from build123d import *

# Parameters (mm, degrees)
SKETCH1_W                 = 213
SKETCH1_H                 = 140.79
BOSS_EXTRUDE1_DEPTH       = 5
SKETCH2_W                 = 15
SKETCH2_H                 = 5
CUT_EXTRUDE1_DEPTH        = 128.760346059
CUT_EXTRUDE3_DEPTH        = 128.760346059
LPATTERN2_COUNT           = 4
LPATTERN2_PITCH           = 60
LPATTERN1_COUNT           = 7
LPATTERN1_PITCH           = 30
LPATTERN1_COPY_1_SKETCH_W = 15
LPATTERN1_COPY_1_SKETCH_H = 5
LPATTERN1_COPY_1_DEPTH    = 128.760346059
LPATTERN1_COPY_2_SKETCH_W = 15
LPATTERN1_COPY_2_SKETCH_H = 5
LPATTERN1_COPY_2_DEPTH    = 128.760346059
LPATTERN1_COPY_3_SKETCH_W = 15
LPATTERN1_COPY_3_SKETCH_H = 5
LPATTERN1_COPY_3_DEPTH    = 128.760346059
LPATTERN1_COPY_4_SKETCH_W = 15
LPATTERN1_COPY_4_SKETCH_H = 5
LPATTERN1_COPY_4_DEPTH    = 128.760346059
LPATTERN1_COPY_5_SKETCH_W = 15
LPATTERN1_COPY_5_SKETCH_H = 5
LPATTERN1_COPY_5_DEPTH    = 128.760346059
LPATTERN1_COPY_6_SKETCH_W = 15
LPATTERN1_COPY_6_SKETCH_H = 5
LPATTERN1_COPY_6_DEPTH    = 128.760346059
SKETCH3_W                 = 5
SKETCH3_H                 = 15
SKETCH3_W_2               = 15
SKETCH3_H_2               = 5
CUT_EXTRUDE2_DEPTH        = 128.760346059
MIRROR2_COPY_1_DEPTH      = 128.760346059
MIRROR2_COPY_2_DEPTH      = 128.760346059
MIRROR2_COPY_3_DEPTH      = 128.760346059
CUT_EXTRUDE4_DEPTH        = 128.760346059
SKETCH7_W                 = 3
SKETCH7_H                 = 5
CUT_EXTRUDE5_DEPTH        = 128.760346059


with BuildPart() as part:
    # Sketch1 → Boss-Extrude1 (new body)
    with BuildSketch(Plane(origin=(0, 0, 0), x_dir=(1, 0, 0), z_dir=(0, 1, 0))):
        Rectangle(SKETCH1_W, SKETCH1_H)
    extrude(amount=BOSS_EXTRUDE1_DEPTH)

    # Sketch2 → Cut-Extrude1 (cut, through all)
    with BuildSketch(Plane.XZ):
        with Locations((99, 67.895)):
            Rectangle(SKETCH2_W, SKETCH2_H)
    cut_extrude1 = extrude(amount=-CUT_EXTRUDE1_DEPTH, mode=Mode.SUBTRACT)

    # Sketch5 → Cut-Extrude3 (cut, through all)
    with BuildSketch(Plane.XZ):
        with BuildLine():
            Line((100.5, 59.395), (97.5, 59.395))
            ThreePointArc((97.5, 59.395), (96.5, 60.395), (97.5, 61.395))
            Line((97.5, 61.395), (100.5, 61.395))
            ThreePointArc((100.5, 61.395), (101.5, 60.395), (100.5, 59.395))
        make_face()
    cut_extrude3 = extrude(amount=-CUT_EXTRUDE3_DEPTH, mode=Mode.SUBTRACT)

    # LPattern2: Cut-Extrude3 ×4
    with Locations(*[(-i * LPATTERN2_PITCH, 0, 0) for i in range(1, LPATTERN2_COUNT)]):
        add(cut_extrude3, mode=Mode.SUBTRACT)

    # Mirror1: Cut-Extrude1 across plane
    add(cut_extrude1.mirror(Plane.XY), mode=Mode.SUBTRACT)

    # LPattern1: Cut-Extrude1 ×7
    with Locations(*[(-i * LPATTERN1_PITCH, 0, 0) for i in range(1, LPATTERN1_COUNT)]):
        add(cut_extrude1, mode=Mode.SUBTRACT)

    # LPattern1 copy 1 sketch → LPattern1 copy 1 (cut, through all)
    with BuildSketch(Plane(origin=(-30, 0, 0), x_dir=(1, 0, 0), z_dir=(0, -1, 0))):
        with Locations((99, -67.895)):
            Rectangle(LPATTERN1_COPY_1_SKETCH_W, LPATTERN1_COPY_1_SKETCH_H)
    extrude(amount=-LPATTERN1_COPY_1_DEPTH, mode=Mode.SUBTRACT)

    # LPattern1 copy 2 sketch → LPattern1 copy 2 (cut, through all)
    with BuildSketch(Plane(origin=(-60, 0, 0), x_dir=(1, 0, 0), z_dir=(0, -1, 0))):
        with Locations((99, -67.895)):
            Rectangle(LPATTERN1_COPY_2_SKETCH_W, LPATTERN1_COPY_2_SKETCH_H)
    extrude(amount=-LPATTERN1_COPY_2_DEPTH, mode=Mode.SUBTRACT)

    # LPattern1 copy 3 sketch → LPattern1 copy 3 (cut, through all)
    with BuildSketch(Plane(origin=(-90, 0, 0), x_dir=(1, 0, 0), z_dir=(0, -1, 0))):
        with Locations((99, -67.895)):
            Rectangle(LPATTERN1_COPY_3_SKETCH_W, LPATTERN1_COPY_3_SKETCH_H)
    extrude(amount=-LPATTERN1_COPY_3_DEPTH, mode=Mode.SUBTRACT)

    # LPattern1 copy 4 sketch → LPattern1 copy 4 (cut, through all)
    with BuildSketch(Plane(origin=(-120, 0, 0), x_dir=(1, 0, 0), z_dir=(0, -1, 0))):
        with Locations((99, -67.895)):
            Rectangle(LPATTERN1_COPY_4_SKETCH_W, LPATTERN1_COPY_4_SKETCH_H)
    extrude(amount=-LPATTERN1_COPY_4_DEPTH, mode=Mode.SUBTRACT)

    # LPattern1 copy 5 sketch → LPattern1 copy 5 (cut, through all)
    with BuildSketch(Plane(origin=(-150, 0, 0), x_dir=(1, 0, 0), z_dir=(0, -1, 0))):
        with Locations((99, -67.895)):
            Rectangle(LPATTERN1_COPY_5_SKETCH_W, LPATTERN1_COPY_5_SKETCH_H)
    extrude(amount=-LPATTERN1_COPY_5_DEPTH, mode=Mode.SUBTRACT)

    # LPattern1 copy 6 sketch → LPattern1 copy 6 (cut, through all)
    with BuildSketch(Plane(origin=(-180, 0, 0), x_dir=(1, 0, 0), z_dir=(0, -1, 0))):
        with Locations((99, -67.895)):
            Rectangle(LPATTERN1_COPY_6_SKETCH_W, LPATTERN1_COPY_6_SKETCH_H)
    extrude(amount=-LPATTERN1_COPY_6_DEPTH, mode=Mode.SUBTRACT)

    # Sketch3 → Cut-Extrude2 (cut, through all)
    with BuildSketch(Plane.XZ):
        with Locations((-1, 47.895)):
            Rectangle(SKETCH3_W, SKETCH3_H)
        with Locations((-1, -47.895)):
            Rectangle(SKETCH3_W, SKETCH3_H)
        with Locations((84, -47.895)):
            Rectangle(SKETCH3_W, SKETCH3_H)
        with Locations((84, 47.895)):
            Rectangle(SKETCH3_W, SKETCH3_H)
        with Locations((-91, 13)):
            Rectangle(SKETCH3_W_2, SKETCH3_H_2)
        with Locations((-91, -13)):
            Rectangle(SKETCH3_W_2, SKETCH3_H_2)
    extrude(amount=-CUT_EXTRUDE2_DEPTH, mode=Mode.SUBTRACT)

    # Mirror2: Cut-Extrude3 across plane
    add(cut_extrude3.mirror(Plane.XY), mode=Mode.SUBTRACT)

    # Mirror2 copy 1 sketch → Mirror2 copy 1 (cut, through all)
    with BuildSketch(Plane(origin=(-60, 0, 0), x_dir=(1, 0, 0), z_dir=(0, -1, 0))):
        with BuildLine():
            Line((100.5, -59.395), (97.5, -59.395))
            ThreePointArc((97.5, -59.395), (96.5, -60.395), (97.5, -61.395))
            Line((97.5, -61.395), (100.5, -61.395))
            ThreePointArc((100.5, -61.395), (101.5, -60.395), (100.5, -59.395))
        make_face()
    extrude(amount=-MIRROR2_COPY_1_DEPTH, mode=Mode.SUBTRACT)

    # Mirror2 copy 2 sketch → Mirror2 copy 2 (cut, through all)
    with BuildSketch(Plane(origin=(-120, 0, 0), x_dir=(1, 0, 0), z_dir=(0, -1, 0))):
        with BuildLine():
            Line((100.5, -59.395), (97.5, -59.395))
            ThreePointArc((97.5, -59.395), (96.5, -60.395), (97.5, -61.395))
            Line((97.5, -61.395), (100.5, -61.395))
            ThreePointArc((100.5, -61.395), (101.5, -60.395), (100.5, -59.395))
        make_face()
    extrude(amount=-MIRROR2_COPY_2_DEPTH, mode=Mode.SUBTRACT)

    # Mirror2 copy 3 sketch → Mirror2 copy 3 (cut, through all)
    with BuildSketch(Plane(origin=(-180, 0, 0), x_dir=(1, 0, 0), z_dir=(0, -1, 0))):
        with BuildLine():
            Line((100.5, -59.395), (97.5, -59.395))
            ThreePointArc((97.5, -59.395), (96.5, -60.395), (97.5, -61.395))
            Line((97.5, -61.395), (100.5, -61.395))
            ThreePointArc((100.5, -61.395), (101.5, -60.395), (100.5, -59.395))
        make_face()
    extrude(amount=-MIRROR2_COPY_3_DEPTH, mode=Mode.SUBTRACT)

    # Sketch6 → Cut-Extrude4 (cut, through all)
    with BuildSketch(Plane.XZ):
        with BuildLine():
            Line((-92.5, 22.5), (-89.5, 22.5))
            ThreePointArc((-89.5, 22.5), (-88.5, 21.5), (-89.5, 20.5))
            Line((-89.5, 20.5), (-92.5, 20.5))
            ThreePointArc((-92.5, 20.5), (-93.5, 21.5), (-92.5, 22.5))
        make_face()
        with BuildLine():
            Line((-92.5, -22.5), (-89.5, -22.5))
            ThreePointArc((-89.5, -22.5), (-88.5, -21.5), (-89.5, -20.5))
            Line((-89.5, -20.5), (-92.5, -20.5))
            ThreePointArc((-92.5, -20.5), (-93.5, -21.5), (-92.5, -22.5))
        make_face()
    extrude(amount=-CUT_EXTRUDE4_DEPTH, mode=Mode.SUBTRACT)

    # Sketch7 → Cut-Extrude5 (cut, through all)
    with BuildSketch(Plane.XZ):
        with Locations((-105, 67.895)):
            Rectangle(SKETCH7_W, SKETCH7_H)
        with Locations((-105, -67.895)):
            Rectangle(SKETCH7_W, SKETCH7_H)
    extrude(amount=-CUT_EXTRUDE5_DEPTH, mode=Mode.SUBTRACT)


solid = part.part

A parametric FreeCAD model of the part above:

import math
import FreeCAD as App
import Part
import Sketcher

V = App.Vector

doc = App.newDocument("Part")
body = doc.addObject("PartDesign::Body", "Body")

sketch1 = body.newObject("Sketcher::SketchObject", "Sketch")
sketch1.AttachmentSupport = (doc.getObject("XZ_Plane"), [""])
sketch1.MapMode = "FlatFace"
sketch1.addGeometry(Part.LineSegment(V(-106, -70, 0), V(-106, 70, 0)), False)
sketch1.addGeometry(Part.LineSegment(V(-106, 70, 0), V(106, 70, 0)), False)
sketch1.addGeometry(Part.LineSegment(V(106, 70, 0), V(106, -70, 0)), False)
sketch1.addGeometry(Part.LineSegment(V(106, -70, 0), V(-106, -70, 0)), False)
sketch1.addConstraint(Sketcher.Constraint("Coincident", 0, 2, 1, 1))
sketch1.addConstraint(Sketcher.Constraint("Coincident", 1, 2, 2, 1))
sketch1.addConstraint(Sketcher.Constraint("Coincident", 2, 2, 3, 1))
sketch1.addConstraint(Sketcher.Constraint("Coincident", 3, 2, 0, 1))
sketch1.addConstraint(Sketcher.Constraint("Vertical", 0))
sketch1.addConstraint(Sketcher.Constraint("Horizontal", 1))
sketch1.addConstraint(Sketcher.Constraint("Vertical", 2))
sketch1.addConstraint(Sketcher.Constraint("Horizontal", 3))
sketch1.addConstraint(Sketcher.Constraint("Symmetric", 0, 2, 2, 2, -1, 1))
sketch1.addConstraint(Sketcher.Constraint("DistanceX", 1, 1, 1, 2, 213.0))
sketch1.addConstraint(Sketcher.Constraint("DistanceY", 0, 1, 0, 2, 140.79))
pad1 = body.newObject("PartDesign::Pad", "Pad")
pad1.Profile = sketch1
pad1.Length = 5
pad1.Reversed = True

sketch2 = body.newObject("Sketcher::SketchObject", "Sketch001")
sketch2.AttachmentSupport = (doc.getObject("XZ_Plane"), [""])
sketch2.MapMode = "FlatFace"
sketch2.addGeometry(Part.LineSegment(V(92, 70, 0), V(92, 65, 0)), False)
sketch2.addGeometry(Part.LineSegment(V(92, 65, 0), V(106, 65, 0)), False)
sketch2.addGeometry(Part.LineSegment(V(106, 65, 0), V(106, 70, 0)), False)
sketch2.addGeometry(Part.LineSegment(V(106, 70, 0), V(92, 70, 0)), False)
sketch2.addConstraint(Sketcher.Constraint("Coincident", 0, 2, 1, 1))
sketch2.addConstraint(Sketcher.Constraint("Coincident", 1, 2, 2, 1))
sketch2.addConstraint(Sketcher.Constraint("Coincident", 2, 2, 3, 1))
sketch2.addConstraint(Sketcher.Constraint("Coincident", 3, 2, 0, 1))
sketch2.addConstraint(Sketcher.Constraint("Vertical", 0))
sketch2.addConstraint(Sketcher.Constraint("Horizontal", 1))
sketch2.addConstraint(Sketcher.Constraint("Vertical", 2))
sketch2.addConstraint(Sketcher.Constraint("Horizontal", 3))
sketch2.addConstraint(Sketcher.Constraint("DistanceX", 1, 1, 1, 2, 15.0))
sketch2.addConstraint(Sketcher.Constraint("DistanceY", 0, 2, 0, 1, 5.0))
sketch2.addConstraint(Sketcher.Constraint("DistanceX", -1, 1, 0, 2, 91.5))
sketch2.addConstraint(Sketcher.Constraint("DistanceY", -1, 1, 0, 2, 65.395))
pocket1 = body.newObject("PartDesign::Pocket", "Pocket")
pocket1.Profile = sketch2
pocket1.Type = "ThroughAll"

sketch3 = body.newObject("Sketcher::SketchObject", "Sketch002")
sketch3.AttachmentSupport = (doc.getObject("XZ_Plane"), [""])
sketch3.MapMode = "FlatFace"
sketch3.addGeometry(Part.LineSegment(V(97.5, 59.4, 0), V(100.5, 59.4, 0)), False)
sketch3.addGeometry(Part.ArcOfCircle(Part.Circle(V(100.5, 60.4, 0), V(0, 0, 1), 1), math.radians(-90), math.radians(90)), False)
sketch3.addGeometry(Part.LineSegment(V(100.5, 61.4, 0), V(97.5, 61.4, 0)), False)
sketch3.addGeometry(Part.ArcOfCircle(Part.Circle(V(97.5, 60.4, 0), V(0, 0, 1), 1), math.radians(90), math.radians(270)), False)
sketch3.addConstraint(Sketcher.Constraint("Tangent", 0, 2, 1, 1))
sketch3.addConstraint(Sketcher.Constraint("Tangent", 1, 2, 2, 1))
sketch3.addConstraint(Sketcher.Constraint("Tangent", 2, 2, 3, 1))
sketch3.addConstraint(Sketcher.Constraint("Tangent", 3, 2, 0, 1))
sketch3.addConstraint(Sketcher.Constraint("Horizontal", 0))
sketch3.addConstraint(Sketcher.Constraint("Horizontal", 2))
sketch3.addConstraint(Sketcher.Constraint("Radius", 1, 1.0))
sketch3.addConstraint(Sketcher.Constraint("DistanceX", 0, 1, 0, 2, 3.0))
sketch3.addConstraint(Sketcher.Constraint("DistanceX", -1, 1, 1, 3, 100.5))
sketch3.addConstraint(Sketcher.Constraint("DistanceY", -1, 1, 1, 3, 60.395))
pocket2 = body.newObject("PartDesign::Pocket", "Pocket001")
pocket2.Profile = sketch3
pocket2.Type = "ThroughAll"
doc.recompute()

linearpattern = body.newObject("PartDesign::LinearPattern", "LinearPattern")
linearpattern.Originals = [pocket2]
linearpattern.Direction = (doc.getObject("X_Axis"), [""])
linearpattern.Mode = "offset"
linearpattern.Offset = 60
linearpattern.Occurrences = 4
linearpattern.Reversed = True
body.Tip = linearpattern
doc.recompute()

mirrored = body.newObject("PartDesign::Mirrored", "Mirrored")
mirrored.Originals = [pocket1]
mirrored.MirrorPlane = (doc.getObject("XY_Plane"), [""])
body.Tip = mirrored
doc.recompute()

linearpattern2 = body.newObject("PartDesign::LinearPattern", "LinearPattern001")
linearpattern2.Originals = [pocket1]
linearpattern2.Direction = (doc.getObject("X_Axis"), [""])
linearpattern2.Mode = "offset"
linearpattern2.Offset = 30
linearpattern2.Occurrences = 7
linearpattern2.Reversed = True
body.Tip = linearpattern2

sketch4 = body.newObject("Sketcher::SketchObject", "Sketch003")
sketch4.AttachmentSupport = (doc.getObject("XZ_Plane"), [""])
sketch4.MapMode = "FlatFace"
sketch4.addGeometry(Part.LineSegment(V(62, -65, 0), V(62, -70, 0)), False)
sketch4.addGeometry(Part.LineSegment(V(62, -70, 0), V(76, -70, 0)), False)
sketch4.addGeometry(Part.LineSegment(V(76, -70, 0), V(76, -65, 0)), False)
sketch4.addGeometry(Part.LineSegment(V(76, -65, 0), V(62, -65, 0)), False)
sketch4.addConstraint(Sketcher.Constraint("Coincident", 0, 2, 1, 1))
sketch4.addConstraint(Sketcher.Constraint("Coincident", 1, 2, 2, 1))
sketch4.addConstraint(Sketcher.Constraint("Coincident", 2, 2, 3, 1))
sketch4.addConstraint(Sketcher.Constraint("Coincident", 3, 2, 0, 1))
sketch4.addConstraint(Sketcher.Constraint("Vertical", 0))
sketch4.addConstraint(Sketcher.Constraint("Horizontal", 1))
sketch4.addConstraint(Sketcher.Constraint("Vertical", 2))
sketch4.addConstraint(Sketcher.Constraint("Horizontal", 3))
sketch4.addConstraint(Sketcher.Constraint("DistanceX", 1, 1, 1, 2, 15.0))
sketch4.addConstraint(Sketcher.Constraint("DistanceY", 0, 2, 0, 1, 5.0))
sketch4.addConstraint(Sketcher.Constraint("DistanceX", -1, 1, 0, 2, 61.5))
sketch4.addConstraint(Sketcher.Constraint("DistanceY", 0, 2, -1, 1, 70.395))
pocket3 = body.newObject("PartDesign::Pocket", "Pocket002")
pocket3.Profile = sketch4
pocket3.Type = "ThroughAll"

sketch5 = body.newObject("Sketcher::SketchObject", "Sketch004")
sketch5.AttachmentSupport = (doc.getObject("XZ_Plane"), [""])
sketch5.MapMode = "FlatFace"
sketch5.addGeometry(Part.LineSegment(V(32, -65, 0), V(32, -70, 0)), False)
sketch5.addGeometry(Part.LineSegment(V(32, -70, 0), V(46, -70, 0)), False)
sketch5.addGeometry(Part.LineSegment(V(46, -70, 0), V(46, -65, 0)), False)
sketch5.addGeometry(Part.LineSegment(V(46, -65, 0), V(32, -65, 0)), False)
sketch5.addConstraint(Sketcher.Constraint("Coincident", 0, 2, 1, 1))
sketch5.addConstraint(Sketcher.Constraint("Coincident", 1, 2, 2, 1))
sketch5.addConstraint(Sketcher.Constraint("Coincident", 2, 2, 3, 1))
sketch5.addConstraint(Sketcher.Constraint("Coincident", 3, 2, 0, 1))
sketch5.addConstraint(Sketcher.Constraint("Vertical", 0))
sketch5.addConstraint(Sketcher.Constraint("Horizontal", 1))
sketch5.addConstraint(Sketcher.Constraint("Vertical", 2))
sketch5.addConstraint(Sketcher.Constraint("Horizontal", 3))
sketch5.addConstraint(Sketcher.Constraint("DistanceX", 1, 1, 1, 2, 15.0))
sketch5.addConstraint(Sketcher.Constraint("DistanceY", 0, 2, 0, 1, 5.0))
sketch5.addConstraint(Sketcher.Constraint("DistanceX", -1, 1, 0, 2, 31.5))
sketch5.addConstraint(Sketcher.Constraint("DistanceY", 0, 2, -1, 1, 70.395))
pocket4 = body.newObject("PartDesign::Pocket", "Pocket003")
pocket4.Profile = sketch5
pocket4.Type = "ThroughAll"

sketch6 = body.newObject("Sketcher::SketchObject", "Sketch005")
sketch6.AttachmentSupport = (doc.getObject("XZ_Plane"), [""])
sketch6.MapMode = "FlatFace"
sketch6.addGeometry(Part.LineSegment(V(2, -65, 0), V(2, -70, 0)), False)
sketch6.addGeometry(Part.LineSegment(V(2, -70, 0), V(16, -70, 0)), False)
sketch6.addGeometry(Part.LineSegment(V(16, -70, 0), V(16, -65, 0)), False)
sketch6.addGeometry(Part.LineSegment(V(16, -65, 0), V(2, -65, 0)), False)
sketch6.addConstraint(Sketcher.Constraint("Coincident", 0, 2, 1, 1))
sketch6.addConstraint(Sketcher.Constraint("Coincident", 1, 2, 2, 1))
sketch6.addConstraint(Sketcher.Constraint("Coincident", 2, 2, 3, 1))
sketch6.addConstraint(Sketcher.Constraint("Coincident", 3, 2, 0, 1))
sketch6.addConstraint(Sketcher.Constraint("Vertical", 0))
sketch6.addConstraint(Sketcher.Constraint("Horizontal", 1))
sketch6.addConstraint(Sketcher.Constraint("Vertical", 2))
sketch6.addConstraint(Sketcher.Constraint("Horizontal", 3))
sketch6.addConstraint(Sketcher.Constraint("DistanceX", 1, 1, 1, 2, 15.0))
sketch6.addConstraint(Sketcher.Constraint("DistanceY", 0, 2, 0, 1, 5.0))
sketch6.addConstraint(Sketcher.Constraint("DistanceX", -1, 1, 0, 2, 1.5))
sketch6.addConstraint(Sketcher.Constraint("DistanceY", 0, 2, -1, 1, 70.395))
pocket5 = body.newObject("PartDesign::Pocket", "Pocket004")
pocket5.Profile = sketch6
pocket5.Type = "ThroughAll"

sketch7 = body.newObject("Sketcher::SketchObject", "Sketch006")
sketch7.AttachmentSupport = (doc.getObject("XZ_Plane"), [""])
sketch7.MapMode = "FlatFace"
sketch7.addGeometry(Part.LineSegment(V(-28, -65, 0), V(-28, -70, 0)), False)
sketch7.addGeometry(Part.LineSegment(V(-28, -70, 0), V(-14, -70, 0)), False)
sketch7.addGeometry(Part.LineSegment(V(-14, -70, 0), V(-14, -65, 0)), False)
sketch7.addGeometry(Part.LineSegment(V(-14, -65, 0), V(-28, -65, 0)), False)
sketch7.addConstraint(Sketcher.Constraint("Coincident", 0, 2, 1, 1))
sketch7.addConstraint(Sketcher.Constraint("Coincident", 1, 2, 2, 1))
sketch7.addConstraint(Sketcher.Constraint("Coincident", 2, 2, 3, 1))
sketch7.addConstraint(Sketcher.Constraint("Coincident", 3, 2, 0, 1))
sketch7.addConstraint(Sketcher.Constraint("Vertical", 0))
sketch7.addConstraint(Sketcher.Constraint("Horizontal", 1))
sketch7.addConstraint(Sketcher.Constraint("Vertical", 2))
sketch7.addConstraint(Sketcher.Constraint("Horizontal", 3))
sketch7.addConstraint(Sketcher.Constraint("DistanceX", 1, 1, 1, 2, 15.0))
sketch7.addConstraint(Sketcher.Constraint("DistanceY", 0, 2, 0, 1, 5.0))
sketch7.addConstraint(Sketcher.Constraint("DistanceX", 0, 2, -1, 1, 28.5))
sketch7.addConstraint(Sketcher.Constraint("DistanceY", 0, 2, -1, 1, 70.395))
pocket6 = body.newObject("PartDesign::Pocket", "Pocket005")
pocket6.Profile = sketch7
pocket6.Type = "ThroughAll"

sketch8 = body.newObject("Sketcher::SketchObject", "Sketch007")
sketch8.AttachmentSupport = (doc.getObject("XZ_Plane"), [""])
sketch8.MapMode = "FlatFace"
sketch8.addGeometry(Part.LineSegment(V(-58, -65, 0), V(-58, -70, 0)), False)
sketch8.addGeometry(Part.LineSegment(V(-58, -70, 0), V(-44, -70, 0)), False)
sketch8.addGeometry(Part.LineSegment(V(-44, -70, 0), V(-44, -65, 0)), False)
sketch8.addGeometry(Part.LineSegment(V(-44, -65, 0), V(-58, -65, 0)), False)
sketch8.addConstraint(Sketcher.Constraint("Coincident", 0, 2, 1, 1))
sketch8.addConstraint(Sketcher.Constraint("Coincident", 1, 2, 2, 1))
sketch8.addConstraint(Sketcher.Constraint("Coincident", 2, 2, 3, 1))
sketch8.addConstraint(Sketcher.Constraint("Coincident", 3, 2, 0, 1))
sketch8.addConstraint(Sketcher.Constraint("Vertical", 0))
sketch8.addConstraint(Sketcher.Constraint("Horizontal", 1))
sketch8.addConstraint(Sketcher.Constraint("Vertical", 2))
sketch8.addConstraint(Sketcher.Constraint("Horizontal", 3))
sketch8.addConstraint(Sketcher.Constraint("DistanceX", 1, 1, 1, 2, 15.0))
sketch8.addConstraint(Sketcher.Constraint("DistanceY", 0, 2, 0, 1, 5.0))
sketch8.addConstraint(Sketcher.Constraint("DistanceX", 0, 2, -1, 1, 58.5))
sketch8.addConstraint(Sketcher.Constraint("DistanceY", 0, 2, -1, 1, 70.395))
pocket7 = body.newObject("PartDesign::Pocket", "Pocket006")
pocket7.Profile = sketch8
pocket7.Type = "ThroughAll"

sketch9 = body.newObject("Sketcher::SketchObject", "Sketch008")
sketch9.AttachmentSupport = (doc.getObject("XZ_Plane"), [""])
sketch9.MapMode = "FlatFace"
sketch9.addGeometry(Part.LineSegment(V(-88, -65, 0), V(-88, -70, 0)), False)
sketch9.addGeometry(Part.LineSegment(V(-88, -70, 0), V(-74, -70, 0)), False)
sketch9.addGeometry(Part.LineSegment(V(-74, -70, 0), V(-74, -65, 0)), False)
sketch9.addGeometry(Part.LineSegment(V(-74, -65, 0), V(-88, -65, 0)), False)
sketch9.addConstraint(Sketcher.Constraint("Coincident", 0, 2, 1, 1))
sketch9.addConstraint(Sketcher.Constraint("Coincident", 1, 2, 2, 1))
sketch9.addConstraint(Sketcher.Constraint("Coincident", 2, 2, 3, 1))
sketch9.addConstraint(Sketcher.Constraint("Coincident", 3, 2, 0, 1))
sketch9.addConstraint(Sketcher.Constraint("Vertical", 0))
sketch9.addConstraint(Sketcher.Constraint("Horizontal", 1))
sketch9.addConstraint(Sketcher.Constraint("Vertical", 2))
sketch9.addConstraint(Sketcher.Constraint("Horizontal", 3))
sketch9.addConstraint(Sketcher.Constraint("DistanceX", 1, 1, 1, 2, 15.0))
sketch9.addConstraint(Sketcher.Constraint("DistanceY", 0, 2, 0, 1, 5.0))
sketch9.addConstraint(Sketcher.Constraint("DistanceX", 0, 2, -1, 1, 88.5))
sketch9.addConstraint(Sketcher.Constraint("DistanceY", 0, 2, -1, 1, 70.395))
pocket8 = body.newObject("PartDesign::Pocket", "Pocket007")
pocket8.Profile = sketch9
pocket8.Type = "ThroughAll"

sketch10 = body.newObject("Sketcher::SketchObject", "Sketch009")
sketch10.AttachmentSupport = (doc.getObject("XZ_Plane"), [""])
sketch10.MapMode = "FlatFace"
sketch10.addGeometry(Part.LineSegment(V(-4, 55, 0), V(-4, 40, 0)), False)
sketch10.addGeometry(Part.LineSegment(V(-4, 40, 0), V(2, 40, 0)), False)
sketch10.addGeometry(Part.LineSegment(V(2, 40, 0), V(2, 55, 0)), False)
sketch10.addGeometry(Part.LineSegment(V(2, 55, 0), V(-4, 55, 0)), False)
sketch10.addGeometry(Part.LineSegment(V(-4, -40, 0), V(-4, -55, 0)), False)
sketch10.addGeometry(Part.LineSegment(V(-4, -55, 0), V(2, -55, 0)), False)
sketch10.addGeometry(Part.LineSegment(V(2, -55, 0), V(2, -40, 0)), False)
sketch10.addGeometry(Part.LineSegment(V(2, -40, 0), V(-4, -40, 0)), False)
sketch10.addGeometry(Part.LineSegment(V(82, -40, 0), V(82, -55, 0)), False)
sketch10.addGeometry(Part.LineSegment(V(82, -55, 0), V(86, -55, 0)), False)
sketch10.addGeometry(Part.LineSegment(V(86, -55, 0), V(86, -40, 0)), False)
sketch10.addGeometry(Part.LineSegment(V(86, -40, 0), V(82, -40, 0)), False)
sketch10.addGeometry(Part.LineSegment(V(82, 55, 0), V(82, 40, 0)), False)
sketch10.addGeometry(Part.LineSegment(V(82, 40, 0), V(86, 40, 0)), False)
sketch10.addGeometry(Part.LineSegment(V(86, 40, 0), V(86, 55, 0)), False)
sketch10.addGeometry(Part.LineSegment(V(86, 55, 0), V(82, 55, 0)), False)
sketch10.addGeometry(Part.LineSegment(V(-98, 16, 0), V(-98, 10, 0)), False)
sketch10.addGeometry(Part.LineSegment(V(-98, 10, 0), V(-84, 10, 0)), False)
sketch10.addGeometry(Part.LineSegment(V(-84, 10, 0), V(-84, 16, 0)), False)
sketch10.addGeometry(Part.LineSegment(V(-84, 16, 0), V(-98, 16, 0)), False)
sketch10.addGeometry(Part.LineSegment(V(-98, -10, 0), V(-98, -16, 0)), False)
sketch10.addGeometry(Part.LineSegment(V(-98, -16, 0), V(-84, -16, 0)), False)
sketch10.addGeometry(Part.LineSegment(V(-84, -16, 0), V(-84, -10, 0)), False)
sketch10.addGeometry(Part.LineSegment(V(-84, -10, 0), V(-98, -10, 0)), False)
sketch10.addConstraint(Sketcher.Constraint("Coincident", 0, 2, 1, 1))
sketch10.addConstraint(Sketcher.Constraint("Coincident", 1, 2, 2, 1))
sketch10.addConstraint(Sketcher.Constraint("Coincident", 2, 2, 3, 1))
sketch10.addConstraint(Sketcher.Constraint("Coincident", 3, 2, 0, 1))
sketch10.addConstraint(Sketcher.Constraint("Coincident", 4, 2, 5, 1))
sketch10.addConstraint(Sketcher.Constraint("Coincident", 5, 2, 6, 1))
sketch10.addConstraint(Sketcher.Constraint("Coincident", 6, 2, 7, 1))
sketch10.addConstraint(Sketcher.Constraint("Coincident", 7, 2, 4, 1))
sketch10.addConstraint(Sketcher.Constraint("Coincident", 8, 2, 9, 1))
sketch10.addConstraint(Sketcher.Constraint("Coincident", 9, 2, 10, 1))
sketch10.addConstraint(Sketcher.Constraint("Coincident", 10, 2, 11, 1))
sketch10.addConstraint(Sketcher.Constraint("Coincident", 11, 2, 8, 1))
sketch10.addConstraint(Sketcher.Constraint("Coincident", 12, 2, 13, 1))
sketch10.addConstraint(Sketcher.Constraint("Coincident", 13, 2, 14, 1))
sketch10.addConstraint(Sketcher.Constraint("Coincident", 14, 2, 15, 1))
sketch10.addConstraint(Sketcher.Constraint("Coincident", 15, 2, 12, 1))
sketch10.addConstraint(Sketcher.Constraint("Coincident", 16, 2, 17, 1))
sketch10.addConstraint(Sketcher.Constraint("Coincident", 17, 2, 18, 1))
sketch10.addConstraint(Sketcher.Constraint("Coincident", 18, 2, 19, 1))
sketch10.addConstraint(Sketcher.Constraint("Coincident", 19, 2, 16, 1))
sketch10.addConstraint(Sketcher.Constraint("Coincident", 20, 2, 21, 1))
sketch10.addConstraint(Sketcher.Constraint("Coincident", 21, 2, 22, 1))
sketch10.addConstraint(Sketcher.Constraint("Coincident", 22, 2, 23, 1))
sketch10.addConstraint(Sketcher.Constraint("Coincident", 23, 2, 20, 1))
sketch10.addConstraint(Sketcher.Constraint("Vertical", 0))
sketch10.addConstraint(Sketcher.Constraint("Horizontal", 1))
sketch10.addConstraint(Sketcher.Constraint("Vertical", 2))
sketch10.addConstraint(Sketcher.Constraint("Horizontal", 3))
sketch10.addConstraint(Sketcher.Constraint("Vertical", 4))
sketch10.addConstraint(Sketcher.Constraint("Horizontal", 5))
sketch10.addConstraint(Sketcher.Constraint("Vertical", 6))
sketch10.addConstraint(Sketcher.Constraint("Horizontal", 7))
sketch10.addConstraint(Sketcher.Constraint("Vertical", 8))
sketch10.addConstraint(Sketcher.Constraint("Horizontal", 9))
sketch10.addConstraint(Sketcher.Constraint("Vertical", 10))
sketch10.addConstraint(Sketcher.Constraint("Horizontal", 11))
sketch10.addConstraint(Sketcher.Constraint("Vertical", 12))
sketch10.addConstraint(Sketcher.Constraint("Horizontal", 13))
sketch10.addConstraint(Sketcher.Constraint("Vertical", 14))
sketch10.addConstraint(Sketcher.Constraint("Horizontal", 15))
sketch10.addConstraint(Sketcher.Constraint("Vertical", 16))
sketch10.addConstraint(Sketcher.Constraint("Horizontal", 17))
sketch10.addConstraint(Sketcher.Constraint("Vertical", 18))
sketch10.addConstraint(Sketcher.Constraint("Horizontal", 19))
sketch10.addConstraint(Sketcher.Constraint("Vertical", 20))
sketch10.addConstraint(Sketcher.Constraint("Horizontal", 21))
sketch10.addConstraint(Sketcher.Constraint("Vertical", 22))
sketch10.addConstraint(Sketcher.Constraint("Horizontal", 23))
sketch10.addConstraint(Sketcher.Constraint("Symmetric", 3, 2, 4, 2, -1))
sketch10.addConstraint(Sketcher.Constraint("Symmetric", 1, 2, 6, 2, -1))
sketch10.addConstraint(Sketcher.Constraint("Symmetric", 11, 2, 12, 2, -1))
sketch10.addConstraint(Sketcher.Constraint("Symmetric", 9, 2, 14, 2, -1))
sketch10.addConstraint(Sketcher.Constraint("Symmetric", 19, 2, 20, 2, -1))
sketch10.addConstraint(Sketcher.Constraint("Symmetric", 17, 2, 22, 2, -1))
sketch10.addConstraint(Sketcher.Constraint("Horizontal", 5, 2, 8, 2))
sketch10.addConstraint(Sketcher.Constraint("Horizontal", 7, 2, 10, 2))
sketch10.addConstraint(Sketcher.Constraint("Equal", 7, 9))
sketch10.addConstraint(Sketcher.Constraint("Equal", 23, 0))
sketch10.addConstraint(Sketcher.Constraint("Equal", 15, 16))
sketch10.addConstraint(Sketcher.Constraint("DistanceX", 1, 1, 1, 2, 5.0))
sketch10.addConstraint(Sketcher.Constraint("DistanceX", 17, 1, 17, 2, 15.0))
sketch10.addConstraint(Sketcher.Constraint("DistanceX", 5, 2, 8, 2, 80.0))
sketch10.addConstraint(Sketcher.Constraint("DistanceX", 16, 2, 0, 2, 95.0))
sketch10.addConstraint(Sketcher.Constraint("DistanceY", 20, 2, 16, 2, 26.0))
sketch10.addConstraint(Sketcher.Constraint("DistanceX", 0, 2, -1, 1, 3.5))
sketch10.addConstraint(Sketcher.Constraint("DistanceY", 4, 2, 0, 2, 95.79))
pocket9 = body.newObject("PartDesign::Pocket", "Pocket008")
pocket9.Profile = sketch10
pocket9.Type = "ThroughAll"
doc.recompute()

mirrored2 = body.newObject("PartDesign::Mirrored", "Mirrored001")
mirrored2.Originals = [pocket2]
mirrored2.MirrorPlane = (doc.getObject("XY_Plane"), [""])
body.Tip = mirrored2

sketch11 = body.newObject("Sketcher::SketchObject", "Sketch010")
sketch11.AttachmentSupport = (doc.getObject("XZ_Plane"), [""])
sketch11.MapMode = "FlatFace"
sketch11.addGeometry(Part.LineSegment(V(40.5, -59.4, 0), V(37.5, -59.4, 0)), False)
sketch11.addGeometry(Part.ArcOfCircle(Part.Circle(V(37.5, -60.4, 0), V(0, 0, 1), 1), math.radians(90), math.radians(270)), False)
sketch11.addGeometry(Part.LineSegment(V(37.5, -61.4, 0), V(40.5, -61.4, 0)), False)
sketch11.addGeometry(Part.ArcOfCircle(Part.Circle(V(40.5, -60.4, 0), V(0, 0, 1), 1), math.radians(-90), math.radians(90)), False)
sketch11.addConstraint(Sketcher.Constraint("Tangent", 0, 2, 1, 1))
sketch11.addConstraint(Sketcher.Constraint("Tangent", 1, 2, 2, 1))
sketch11.addConstraint(Sketcher.Constraint("Tangent", 2, 2, 3, 1))
sketch11.addConstraint(Sketcher.Constraint("Tangent", 3, 2, 0, 1))
sketch11.addConstraint(Sketcher.Constraint("Horizontal", 0))
sketch11.addConstraint(Sketcher.Constraint("Horizontal", 2))
sketch11.addConstraint(Sketcher.Constraint("Radius", 1, 1.0))
sketch11.addConstraint(Sketcher.Constraint("DistanceX", 0, 2, 0, 1, 3.0))
sketch11.addConstraint(Sketcher.Constraint("DistanceX", -1, 1, 1, 3, 37.5))
sketch11.addConstraint(Sketcher.Constraint("DistanceY", 1, 3, -1, 1, 60.395))
pocket10 = body.newObject("PartDesign::Pocket", "Pocket009")
pocket10.Profile = sketch11
pocket10.Type = "ThroughAll"

sketch12 = body.newObject("Sketcher::SketchObject", "Sketch011")
sketch12.AttachmentSupport = (doc.getObject("XZ_Plane"), [""])
sketch12.MapMode = "FlatFace"
sketch12.addGeometry(Part.LineSegment(V(-19.5, -59.4, 0), V(-22.5, -59.4, 0)), False)
sketch12.addGeometry(Part.ArcOfCircle(Part.Circle(V(-22.5, -60.4, 0), V(0, 0, 1), 1), math.radians(90), math.radians(270)), False)
sketch12.addGeometry(Part.LineSegment(V(-22.5, -61.4, 0), V(-19.5, -61.4, 0)), False)
sketch12.addGeometry(Part.ArcOfCircle(Part.Circle(V(-19.5, -60.4, 0), V(0, 0, 1), 1), math.radians(-90), math.radians(90)), False)
sketch12.addConstraint(Sketcher.Constraint("Tangent", 0, 2, 1, 1))
sketch12.addConstraint(Sketcher.Constraint("Tangent", 1, 2, 2, 1))
sketch12.addConstraint(Sketcher.Constraint("Tangent", 2, 2, 3, 1))
sketch12.addConstraint(Sketcher.Constraint("Tangent", 3, 2, 0, 1))
sketch12.addConstraint(Sketcher.Constraint("Horizontal", 0))
sketch12.addConstraint(Sketcher.Constraint("Horizontal", 2))
sketch12.addConstraint(Sketcher.Constraint("Radius", 1, 1.0))
sketch12.addConstraint(Sketcher.Constraint("DistanceX", 0, 2, 0, 1, 3.0))
sketch12.addConstraint(Sketcher.Constraint("DistanceX", 1, 3, -1, 1, 22.5))
sketch12.addConstraint(Sketcher.Constraint("DistanceY", 1, 3, -1, 1, 60.395))
pocket11 = body.newObject("PartDesign::Pocket", "Pocket010")
pocket11.Profile = sketch12
pocket11.Type = "ThroughAll"

sketch13 = body.newObject("Sketcher::SketchObject", "Sketch012")
sketch13.AttachmentSupport = (doc.getObject("XZ_Plane"), [""])
sketch13.MapMode = "FlatFace"
sketch13.addGeometry(Part.LineSegment(V(-79.5, -59.4, 0), V(-82.5, -59.4, 0)), False)
sketch13.addGeometry(Part.ArcOfCircle(Part.Circle(V(-82.5, -60.4, 0), V(0, 0, 1), 1), math.radians(90), math.radians(270)), False)
sketch13.addGeometry(Part.LineSegment(V(-82.5, -61.4, 0), V(-79.5, -61.4, 0)), False)
sketch13.addGeometry(Part.ArcOfCircle(Part.Circle(V(-79.5, -60.4, 0), V(0, 0, 1), 1), math.radians(-90), math.radians(90)), False)
sketch13.addConstraint(Sketcher.Constraint("Tangent", 0, 2, 1, 1))
sketch13.addConstraint(Sketcher.Constraint("Tangent", 1, 2, 2, 1))
sketch13.addConstraint(Sketcher.Constraint("Tangent", 2, 2, 3, 1))
sketch13.addConstraint(Sketcher.Constraint("Tangent", 3, 2, 0, 1))
sketch13.addConstraint(Sketcher.Constraint("Horizontal", 0))
sketch13.addConstraint(Sketcher.Constraint("Horizontal", 2))
sketch13.addConstraint(Sketcher.Constraint("Radius", 1, 1.0))
sketch13.addConstraint(Sketcher.Constraint("DistanceX", 0, 2, 0, 1, 3.0))
sketch13.addConstraint(Sketcher.Constraint("DistanceX", 1, 3, -1, 1, 82.5))
sketch13.addConstraint(Sketcher.Constraint("DistanceY", 1, 3, -1, 1, 60.395))
pocket12 = body.newObject("PartDesign::Pocket", "Pocket011")
pocket12.Profile = sketch13
pocket12.Type = "ThroughAll"

sketch14 = body.newObject("Sketcher::SketchObject", "Sketch013")
sketch14.AttachmentSupport = (doc.getObject("XZ_Plane"), [""])
sketch14.MapMode = "FlatFace"
sketch14.addGeometry(Part.LineSegment(V(-89.5, 22.5, 0), V(-92.5, 22.5, 0)), False)
sketch14.addGeometry(Part.ArcOfCircle(Part.Circle(V(-92.5, 21.5, 0), V(0, 0, 1), 1), math.radians(90), math.radians(270)), False)
sketch14.addGeometry(Part.LineSegment(V(-92.5, 20.5, 0), V(-89.5, 20.5, 0)), False)
sketch14.addGeometry(Part.ArcOfCircle(Part.Circle(V(-89.5, 21.5, 0), V(0, 0, 1), 1), math.radians(-90), math.radians(90)), False)
sketch14.addGeometry(Part.LineSegment(V(-92.5, -22.5, 0), V(-89.5, -22.5, 0)), False)
sketch14.addGeometry(Part.ArcOfCircle(Part.Circle(V(-89.5, -21.5, 0), V(0, 0, 1), 1), math.radians(-90), math.radians(90)), False)
sketch14.addGeometry(Part.LineSegment(V(-89.5, -20.5, 0), V(-92.5, -20.5, 0)), False)
sketch14.addGeometry(Part.ArcOfCircle(Part.Circle(V(-92.5, -21.5, 0), V(0, 0, 1), 1), math.radians(90), math.radians(270)), False)
sketch14.addConstraint(Sketcher.Constraint("Tangent", 0, 2, 1, 1))
sketch14.addConstraint(Sketcher.Constraint("Tangent", 1, 2, 2, 1))
sketch14.addConstraint(Sketcher.Constraint("Tangent", 2, 2, 3, 1))
sketch14.addConstraint(Sketcher.Constraint("Tangent", 3, 2, 0, 1))
sketch14.addConstraint(Sketcher.Constraint("Tangent", 4, 2, 5, 1))
sketch14.addConstraint(Sketcher.Constraint("Tangent", 5, 2, 6, 1))
sketch14.addConstraint(Sketcher.Constraint("Tangent", 6, 2, 7, 1))
sketch14.addConstraint(Sketcher.Constraint("Tangent", 7, 2, 4, 1))
sketch14.addConstraint(Sketcher.Constraint("Horizontal", 0))
sketch14.addConstraint(Sketcher.Constraint("Horizontal", 2))
sketch14.addConstraint(Sketcher.Constraint("Horizontal", 4))
sketch14.addConstraint(Sketcher.Constraint("Horizontal", 6))
sketch14.addConstraint(Sketcher.Constraint("Equal", 3, 5))
sketch14.addConstraint(Sketcher.Constraint("Symmetric", 3, 3, 5, 3, -1))
sketch14.addConstraint(Sketcher.Constraint("Vertical", 1, 3, 7, 3))
sketch14.addConstraint(Sketcher.Constraint("Radius", 1, 1.0))
sketch14.addConstraint(Sketcher.Constraint("DistanceX", 0, 2, 0, 1, 3.0))
sketch14.addConstraint(Sketcher.Constraint("DistanceY", 5, 3, 3, 3, 43.0))
sketch14.addConstraint(Sketcher.Constraint("DistanceX", 1, 3, -1, 1, 92.5))
pocket13 = body.newObject("PartDesign::Pocket", "Pocket012")
pocket13.Profile = sketch14
pocket13.Type = "ThroughAll"

sketch15 = body.newObject("Sketcher::SketchObject", "Sketch014")
sketch15.AttachmentSupport = (doc.getObject("XZ_Plane"), [""])
sketch15.MapMode = "FlatFace"
sketch15.addGeometry(Part.LineSegment(V(-106.5, 70.4, 0), V(-106.5, 65.4, 0)), False)
sketch15.addGeometry(Part.LineSegment(V(-106.5, 65.4, 0), V(-103.5, 65.4, 0)), False)
sketch15.addGeometry(Part.LineSegment(V(-103.5, 65.4, 0), V(-103.5, 70.4, 0)), False)
sketch15.addGeometry(Part.LineSegment(V(-103.5, 70.4, 0), V(-106.5, 70.4, 0)), False)
sketch15.addGeometry(Part.LineSegment(V(-106.5, -65.4, 0), V(-106.5, -70.4, 0)), False)
sketch15.addGeometry(Part.LineSegment(V(-106.5, -70.4, 0), V(-103.5, -70.4, 0)), False)
sketch15.addGeometry(Part.LineSegment(V(-103.5, -70.4, 0), V(-103.5, -65.4, 0)), False)
sketch15.addGeometry(Part.LineSegment(V(-103.5, -65.4, 0), V(-106.5, -65.4, 0)), False)
sketch15.addConstraint(Sketcher.Constraint("Coincident", 0, 2, 1, 1))
sketch15.addConstraint(Sketcher.Constraint("Coincident", 1, 2, 2, 1))
sketch15.addConstraint(Sketcher.Constraint("Coincident", 2, 2, 3, 1))
sketch15.addConstraint(Sketcher.Constraint("Coincident", 3, 2, 0, 1))
sketch15.addConstraint(Sketcher.Constraint("Coincident", 4, 2, 5, 1))
sketch15.addConstraint(Sketcher.Constraint("Coincident", 5, 2, 6, 1))
sketch15.addConstraint(Sketcher.Constraint("Coincident", 6, 2, 7, 1))
sketch15.addConstraint(Sketcher.Constraint("Coincident", 7, 2, 4, 1))
sketch15.addConstraint(Sketcher.Constraint("Vertical", 0))
sketch15.addConstraint(Sketcher.Constraint("Horizontal", 1))
sketch15.addConstraint(Sketcher.Constraint("Vertical", 2))
sketch15.addConstraint(Sketcher.Constraint("Horizontal", 3))
sketch15.addConstraint(Sketcher.Constraint("Vertical", 4))
sketch15.addConstraint(Sketcher.Constraint("Horizontal", 5))
sketch15.addConstraint(Sketcher.Constraint("Vertical", 6))
sketch15.addConstraint(Sketcher.Constraint("Horizontal", 7))
sketch15.addConstraint(Sketcher.Constraint("Symmetric", 3, 2, 4, 2, -1))
sketch15.addConstraint(Sketcher.Constraint("Symmetric", 1, 2, 6, 2, -1))
sketch15.addConstraint(Sketcher.Constraint("DistanceX", 1, 1, 1, 2, 3.0))
sketch15.addConstraint(Sketcher.Constraint("DistanceY", 0, 2, 0, 1, 5.0))
sketch15.addConstraint(Sketcher.Constraint("DistanceX", 0, 2, -1, 1, 106.5))
sketch15.addConstraint(Sketcher.Constraint("DistanceY", 4, 2, 0, 2, 135.79))
pocket14 = body.newObject("PartDesign::Pocket", "Pocket013")
pocket14.Profile = sketch15
pocket14.Type = "ThroughAll"

doc.recompute()
